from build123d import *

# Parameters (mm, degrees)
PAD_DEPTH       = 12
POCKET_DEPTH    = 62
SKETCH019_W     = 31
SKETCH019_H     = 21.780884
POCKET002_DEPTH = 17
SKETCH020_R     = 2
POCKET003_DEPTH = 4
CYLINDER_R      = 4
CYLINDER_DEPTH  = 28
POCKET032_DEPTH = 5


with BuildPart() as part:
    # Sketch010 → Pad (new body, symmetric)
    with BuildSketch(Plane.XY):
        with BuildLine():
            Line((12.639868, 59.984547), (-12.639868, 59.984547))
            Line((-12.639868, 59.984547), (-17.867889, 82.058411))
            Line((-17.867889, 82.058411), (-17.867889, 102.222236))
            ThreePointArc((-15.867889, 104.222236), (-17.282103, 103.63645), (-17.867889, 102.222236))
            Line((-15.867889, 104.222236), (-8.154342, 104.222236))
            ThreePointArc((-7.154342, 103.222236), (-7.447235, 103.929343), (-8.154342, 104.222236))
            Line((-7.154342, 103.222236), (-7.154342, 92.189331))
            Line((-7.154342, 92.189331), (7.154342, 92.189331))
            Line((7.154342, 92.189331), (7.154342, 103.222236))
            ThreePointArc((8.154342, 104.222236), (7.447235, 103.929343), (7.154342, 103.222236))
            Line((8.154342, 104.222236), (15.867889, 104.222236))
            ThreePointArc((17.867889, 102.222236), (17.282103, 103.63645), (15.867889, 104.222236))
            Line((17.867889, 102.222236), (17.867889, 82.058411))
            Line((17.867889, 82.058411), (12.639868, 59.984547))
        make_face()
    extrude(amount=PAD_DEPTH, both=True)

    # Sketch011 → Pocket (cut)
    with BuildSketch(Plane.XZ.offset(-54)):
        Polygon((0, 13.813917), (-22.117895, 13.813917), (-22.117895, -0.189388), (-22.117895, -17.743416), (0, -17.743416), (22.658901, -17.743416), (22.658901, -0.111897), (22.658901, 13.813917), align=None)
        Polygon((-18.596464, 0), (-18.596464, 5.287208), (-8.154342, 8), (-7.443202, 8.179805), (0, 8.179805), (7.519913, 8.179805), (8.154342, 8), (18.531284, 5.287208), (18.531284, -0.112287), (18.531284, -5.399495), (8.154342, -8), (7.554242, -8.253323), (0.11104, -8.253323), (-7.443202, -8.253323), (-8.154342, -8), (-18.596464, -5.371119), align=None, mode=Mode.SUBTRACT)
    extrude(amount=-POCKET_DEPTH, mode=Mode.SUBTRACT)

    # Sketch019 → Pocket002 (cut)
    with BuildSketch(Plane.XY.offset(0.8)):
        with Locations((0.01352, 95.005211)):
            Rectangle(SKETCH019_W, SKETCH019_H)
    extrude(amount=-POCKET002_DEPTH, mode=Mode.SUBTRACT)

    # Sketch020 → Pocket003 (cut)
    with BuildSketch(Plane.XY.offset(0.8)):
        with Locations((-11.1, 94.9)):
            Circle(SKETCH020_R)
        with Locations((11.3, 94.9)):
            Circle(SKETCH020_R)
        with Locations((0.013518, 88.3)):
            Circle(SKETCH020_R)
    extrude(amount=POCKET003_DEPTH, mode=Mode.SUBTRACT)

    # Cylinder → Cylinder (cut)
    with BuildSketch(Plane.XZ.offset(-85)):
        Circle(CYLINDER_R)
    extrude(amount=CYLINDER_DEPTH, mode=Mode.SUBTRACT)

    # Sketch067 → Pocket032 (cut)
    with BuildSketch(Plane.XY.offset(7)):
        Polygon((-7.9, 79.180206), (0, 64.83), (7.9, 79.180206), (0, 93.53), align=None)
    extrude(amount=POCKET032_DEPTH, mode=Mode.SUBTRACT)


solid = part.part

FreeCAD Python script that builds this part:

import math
import FreeCAD as App
import Part
import Sketcher
Q = App.Units.Quantity

doc = App.newDocument("Part")
body = doc.addObject("PartDesign::Body", "Body")

# Sketch on XY plane
sketch1 = body.newObject("Sketcher::SketchObject", "Sketch")
sketch1.AttachmentSupport = (doc.getObject("XY_Plane"), [""])
sketch1.MapMode = "FlatFace"
sketch1.addGeometry([
    Part.LineSegment(App.Vector(-12.6, 60, 0), App.Vector(12.6, 60, 0)),  # 0
    Part.LineSegment(App.Vector(12.6, 60, 0), App.Vector(17.9, 82.1, 0)),  # 1
    Part.LineSegment(App.Vector(17.9, 82.1, 0), App.Vector(17.9, 102.2, 0)),  # 2
    Part.ArcOfCircle(Part.Circle(App.Vector(15.9, 102.2, 0), App.Vector(0, 0, 1), 2), math.radians(0), math.radians(90)),  # 3
    Part.LineSegment(App.Vector(15.9, 104.2, 0), App.Vector(8.2, 104.2, 0)),  # 4
    Part.ArcOfCircle(Part.Circle(App.Vector(8.2, 103.2, 0), App.Vector(0, 0, 1), 1), math.radians(90), math.radians(180)),  # 5
    Part.LineSegment(App.Vector(7.2, 103.2, 0), App.Vector(7.2, 92.2, 0)),  # 6
    Part.LineSegment(App.Vector(7.2, 92.2, 0), App.Vector(-7.2, 92.2, 0)),  # 7
    Part.LineSegment(App.Vector(-7.2, 92.2, 0), App.Vector(-7.2, 103.2, 0)),  # 8
    Part.ArcOfCircle(Part.Circle(App.Vector(-8.2, 103.2, 0), App.Vector(0, 0, 1), 1), math.radians(0), math.radians(90)),  # 9
    Part.LineSegment(App.Vector(-8.2, 104.2, 0), App.Vector(-15.9, 104.2, 0)),  # 10
    Part.ArcOfCircle(Part.Circle(App.Vector(-15.9, 102.2, 0), App.Vector(0, 0, 1), 2), math.radians(90), math.radians(180)),  # 11
    Part.LineSegment(App.Vector(-17.9, 102.2, 0), App.Vector(-17.9, 82.1, 0)),  # 12
    Part.LineSegment(App.Vector(-17.9, 82.1, 0), App.Vector(-12.6, 60, 0)),  # 13
], False)
sketch1.addConstraint([
    Sketcher.Constraint("Coincident", 0, 2, 1, 1),
    Sketcher.Constraint("Coincident", 1, 2, 2, 1),
    Sketcher.Constraint("Tangent", 2, 2, 3, 1),
    Sketcher.Constraint("Tangent", 3, 2, 4, 1),
    Sketcher.Constraint("Tangent", 4, 2, 5, 1),
    Sketcher.Constraint("Tangent", 5, 2, 6, 1),
    Sketcher.Constraint("Coincident", 6, 2, 7, 1),
    Sketcher.Constraint("Coincident", 7, 2, 8, 1),
    Sketcher.Constraint("Tangent", 8, 2, 9, 1),
    Sketcher.Constraint("Tangent", 9, 2, 10, 1),
    Sketcher.Constraint("Tangent", 10, 2, 11, 1),
    Sketcher.Constraint("Tangent", 11, 2, 12, 1),
    Sketcher.Constraint("Coincident", 12, 2, 13, 1),
    Sketcher.Constraint("Coincident", 13, 2, 0, 1),
    Sketcher.Constraint("Horizontal", 0),
    Sketcher.Constraint("Vertical", 2),
    Sketcher.Constraint("Horizontal", 4),
    Sketcher.Constraint("Vertical", 6),
    Sketcher.Constraint("Horizontal", 7),
    Sketcher.Constraint("Vertical", 8),
    Sketcher.Constraint("Horizontal", 10),
    Sketcher.Constraint("Vertical", 12),
    Sketcher.Constraint("Equal", 5, 9),
    Sketcher.Constraint("Equal", 3, 11),
    Sketcher.Constraint("Symmetric", 5, 3, 9, 3, -2),
    Sketcher.Constraint("Symmetric", 1, 2, 12, 2, -2),
    Sketcher.Constraint("Equal", 1, 13),
    Sketcher.Constraint("Radius", 3, Q("1.999999 mm")),
    Sketcher.Constraint("Radius", 5, Q("0.999999 mm")),
    Sketcher.Constraint("DistanceX", 0, 1, 0, 2, Q("25.279736 mm")),
    Sketcher.Constraint("DistanceX", 4, 2, 4, 1, Q("7.713547 mm")),
    Sketcher.Constraint("DistanceX", 7, 2, 7, 1, Q("14.308684 mm")),
    Sketcher.Constraint("DistanceY", 2, 1, 2, 2, Q("20.163825 mm")),
    Sketcher.Constraint("DistanceY", 6, 2, 6, 1, Q("11.032905 mm")),
    Sketcher.Constraint("DistanceY", -1, 1, 1, 2, Q("82.058411 mm")),
    Sketcher.Constraint("DistanceY", 0, 2, 3, 3, Q("42.23769 mm")),
])
pad1 = body.newObject("PartDesign::Pad", "Pad")
pad1.Profile = sketch1
pad1.Length = 24
pad1.Midplane = True

# Sketch on XZ plane
sketch2 = body.newObject("Sketcher::SketchObject", "Sketch001")
sketch2.AttachmentSupport = (doc.getObject("XZ_Plane"), [""])
sketch2.MapMode = "FlatFace"
sketch2.AttachmentOffset = App.Placement(App.Vector(0, 0, -54), App.Rotation())
sketch2.addGeometry([
    Part.LineSegment(App.Vector(-22.1, 13.8, 0), App.Vector(-22.1, -17.7, 0)),  # 0
    Part.LineSegment(App.Vector(-22.1, -17.7, 0), App.Vector(22.7, -17.7, 0)),  # 1
    Part.LineSegment(App.Vector(22.7, -17.7, 0), App.Vector(22.7, 13.8, 0)),  # 2
    Part.LineSegment(App.Vector(22.7, 13.8, 0), App.Vector(-22.1, 13.8, 0)),  # 3
    Part.LineSegment(App.Vector(-18.6, -5.4, 0), App.Vector(-18.6, 5.3, 0)),  # 4
    Part.LineSegment(App.Vector(-18.6, 5.3, 0), App.Vector(-8.2, 8, 0)),  # 5
    Part.LineSegment(App.Vector(-8.2, 8, 0), App.Vector(-7.4, 8.2, 0)),  # 6
    Part.LineSegment(App.Vector(-7.4, 8.2, 0), App.Vector(7.5, 8.2, 0)),  # 7
    Part.LineSegment(App.Vector(7.5, 8.2, 0), App.Vector(8.2, 8, 0)),  # 8
    Part.LineSegment(App.Vector(8.2, 8, 0), App.Vector(18.5, 5.3, 0)),  # 9
    Part.LineSegment(App.Vector(18.5, 5.3, 0), App.Vector(18.5, -5.4, 0)),  # 10
    Part.LineSegment(App.Vector(18.5, -5.4, 0), App.Vector(8.2, -8, 0)),  # 11
    Part.LineSegment(App.Vector(8.2, -8, 0), App.Vector(7.6, -8.3, 0)),  # 12
    Part.LineSegment(App.Vector(7.6, -8.3, 0), App.Vector(-7.4, -8.3, 0)),  # 13
    Part.LineSegment(App.Vector(-7.4, -8.3, 0), App.Vector(-8.2, -8, 0)),  # 14
    Part.LineSegment(App.Vector(-8.2, -8, 0), App.Vector(-18.6, -5.4, 0)),  # 15
], False)
sketch2.addConstraint([
    Sketcher.Constraint("Coincident", 0, 2, 1, 1),
    Sketcher.Constraint("Coincident", 1, 2, 2, 1),
    Sketcher.Constraint("Coincident", 2, 2, 3, 1),
    Sketcher.Constraint("Coincident", 3, 2, 0, 1),
    Sketcher.Constraint("Coincident", 4, 2, 5, 1),
    Sketcher.Constraint("Coincident", 5, 2, 6, 1),
    Sketcher.Constraint("Coincident", 6, 2, 7, 1),
    Sketcher.Constraint("Coincident", 7, 2, 8, 1),
    Sketcher.Constraint("Coincident", 8, 2, 9, 1),
    Sketcher.Constraint("Coincident", 9, 2, 10, 1),
    Sketcher.Constraint("Coincident", 10, 2, 11, 1),
    Sketcher.Constraint("Coincident", 11, 2, 12, 1),
    Sketcher.Constraint("Coincident", 12, 2, 13, 1),
    Sketcher.Constraint("Coincident", 13, 2, 14, 1),
    Sketcher.Constraint("Coincident", 14, 2, 15, 1),
    Sketcher.Constraint("Coincident", 15, 2, 4, 1),
    Sketcher.Constraint("Vertical", 0),
    Sketcher.Constraint("Horizontal", 1),
    Sketcher.Constraint("Vertical", 2),
    Sketcher.Constraint("Horizontal", 3),
    Sketcher.Constraint("Vertical", 4),
    Sketcher.Constraint("Horizontal", 7),
    Sketcher.Constraint("Vertical", 10),
    Sketcher.Constraint("Horizontal", 13),
    Sketcher.Constraint("Symmetric", 5, 2, 11, 2, -1, 1),
    Sketcher.Constraint("Symmetric", 8, 2, 14, 2, -1, 1),
    Sketcher.Constraint("Symmetric", 5, 2, 8, 2, -2),
    Sketcher.Constraint("Horizontal", 4, 2, 9, 2),
    Sketcher.Constraint("Vertical", 6, 2, 13, 2),
    Sketcher.Constraint("DistanceY", -1, 1, 5, 2, Q("8 mm")),
    Sketcher.Constraint("DistanceX", -1, 1, 1, 2, Q("22.658901 mm")),
    Sketcher.Constraint("DistanceY", 10, 2, 7, 2, Q("13.5793 mm")),
    Sketcher.Constraint("DistanceX", 12, 2, 11, 2, Q("0.6001 mm")),
    Sketcher.Constraint("Distance", 5, Q("10.788751 mm")),
    Sketcher.Constraint("Distance", 6, Q("0.733519 mm")),
    Sketcher.Constraint("Distance", 11, Q("10.697829 mm")),
    Sketcher.Constraint("Distance", 15, Q("10.767958 mm")),
    Sketcher.Constraint("DistanceX", 1, 1, 1, 2, Q("44.776796 mm")),
    Sketcher.Constraint("DistanceX", 7, 1, 7, 2, Q("14.963115 mm")),
    Sketcher.Constraint("DistanceX", 13, 2, 13, 1, Q("14.997444 mm")),
    Sketcher.Constraint("DistanceY", 0, 2, 0, 1, Q("31.557333 mm")),
    Sketcher.Constraint("DistanceY", 4, 1, 4, 2, Q("10.658327 mm")),
    Sketcher.Constraint("DistanceY", 10, 2, 10, 1, Q("10.686703 mm")),
    Sketcher.Constraint("DistanceY", 4, 2, 3, 2, Q("8.526709 mm")),
    Sketcher.Constraint("DistanceY", 12, 2, 10, 2, Q("2.853828 mm")),
])
pocket1 = body.newObject("PartDesign::Pocket", "Pocket")
pocket1.Profile = sketch2
pocket1.Length = 62

# Sketch on XY plane
sketch3 = body.newObject("Sketcher::SketchObject", "Sketch002")
sketch3.AttachmentSupport = (doc.getObject("XY_Plane"), [""])
sketch3.MapMode = "FlatFace"
sketch3.AttachmentOffset = App.Placement(App.Vector(0, 0, 0.8), App.Rotation())
sketch3.addGeometry([
    Part.LineSegment(App.Vector(-15, 106, 0), App.Vector(-15, 84, 0)),
    Part.LineSegment(App.Vector(-15, 84, 0), App.Vector(16, 84, 0)),
    Part.LineSegment(App.Vector(16, 84, 0), App.Vector(16, 106, 0)),
    Part.LineSegment(App.Vector(16, 106, 0), App.Vector(-15, 106, 0)),
], False)
sketch3.addConstraint([
    Sketcher.Constraint("Coincident", 0, 2, 1, 1),
    Sketcher.Constraint("Coincident", 1, 2, 2, 1),
    Sketcher.Constraint("Coincident", 2, 2, 3, 1),
    Sketcher.Constraint("Coincident", 3, 2, 0, 1),
    Sketcher.Constraint("Vertical", 0),
    Sketcher.Constraint("Horizontal", 1),
    Sketcher.Constraint("Vertical", 2),
    Sketcher.Constraint("Horizontal", 3),
    Sketcher.Constraint("DistanceX", 1, 1, 1, 2, Q("31 mm")),
    Sketcher.Constraint("DistanceY", 0, 2, 0, 1, Q("21.780884 mm")),
    Sketcher.Constraint("DistanceX", 0, 2, -1, 1, Q("15.48648 mm")),
    Sketcher.Constraint("DistanceY", -1, 1, 0, 2, Q("84.114769 mm")),
])
pocket2 = body.newObject("PartDesign::Pocket", "Pocket001")
pocket2.Profile = sketch3
pocket2.Length = 17

# Sketch on XY plane
sketch4 = body.newObject("Sketcher::SketchObject", "Sketch003")
sketch4.AttachmentSupport = (doc.getObject("XY_Plane"), [""])
sketch4.MapMode = "FlatFace"
sketch4.AttachmentOffset = App.Placement(App.Vector(0, 0, 0.8), App.Rotation())
sketch4.addGeometry([
    Part.Circle(App.Vector(-11.1, 94.9, 0), App.Vector(0, 0, 1), 2),
    Part.Circle(App.Vector(11.3, 94.9, 0), App.Vector(0, 0, 1), 2),
    Part.Circle(App.Vector(0, 88.3, 0), App.Vector(0, 0, 1), 2),
], False)
sketch4.addConstraint([
    Sketcher.Constraint("Equal", 0, 1),
    Sketcher.Constraint("Equal", 1, 2),
    Sketcher.Constraint("Horizontal", 0, 3, 1, 3),
    Sketcher.Constraint("Diameter", 0, Q("4 mm")),
    Sketcher.Constraint("DistanceX", 0, 3, -1, 1, Q("11.1 mm")),
    Sketcher.Constraint("DistanceY", -1, 1, 0, 3, Q("94.9 mm")),
    Sketcher.Constraint("DistanceX", -1, 1, 1, 3, Q("11.3 mm")),
    Sketcher.Constraint("DistanceY", -1, 1, 2, 3, Q("88.3 mm")),
    Sketcher.Constraint("DistanceX", -1, 1, 2, 3, Q("0.013518 mm")),
])
pocket3 = body.newObject("PartDesign::Pocket", "Pocket002")
pocket3.Profile = sketch4
pocket3.Length = 4
pocket3.Reversed = True

# Sketch on XZ plane
sketch5 = body.newObject("Sketcher::SketchObject", "Sketch004")
sketch5.AttachmentSupport = (doc.getObject("XZ_Plane"), [""])
sketch5.MapMode = "FlatFace"
sketch5.AttachmentOffset = App.Placement(App.Vector(0, 0, -85), App.Rotation())
sketch5.addGeometry(Part.Circle(App.Vector(0, 0, 0), App.Vector(0, 0, 1), 4), False)
sketch5.addConstraint([
    Sketcher.Constraint("Coincident", 0, 3, -1, 1),
    Sketcher.Constraint("Diameter", 0, Q("8 mm")),
])
pocket4 = body.newObject("PartDesign::Pocket", "Pocket003")
pocket4.Profile = sketch5
pocket4.Length = 28
pocket4.Reversed = True

# Sketch on XY plane
sketch6 = body.newObject("Sketcher::SketchObject", "Sketch005")
sketch6.AttachmentSupport = (doc.getObject("XY_Plane"), [""])
sketch6.MapMode = "FlatFace"
sketch6.AttachmentOffset = App.Placement(App.Vector(0, 0, 7), App.Rotation())
sketch6.addGeometry([
    Part.LineSegment(App.Vector(-8, 79, 0), App.Vector(0, 65, 0)),
    Part.LineSegment(App.Vector(0, 65, 0), App.Vector(8, 79, 0)),
    Part.LineSegment(App.Vector(8, 79, 0), App.Vector(0, 94, 0)),
    Part.LineSegment(App.Vector(0, 94, 0), App.Vector(-8, 79, 0)),
], False)
sketch6.addConstraint([
    Sketcher.Constraint("Coincident", 0, 2, 1, 1),
    Sketcher.Constraint("Coincident", 1, 2, 2, 1),
    Sketcher.Constraint("Coincident", 2, 2, 3, 1),
    Sketcher.Constraint("Coincident", 3, 2, 0, 1),
    Sketcher.Constraint("Symmetric", 1, 2, 3, 2, -2),
    Sketcher.Constraint("PointOnObject", 0, 2, -2),
    Sketcher.Constraint("PointOnObject", 2, 2, -2),
    Sketcher.Constraint("DistanceX", -1, 1, 1, 2, Q("7.9 mm")),
    Sketcher.Constraint("DistanceY", 0, 2, 2, 2, Q("28.7 mm")),
    Sketcher.Constraint("DistanceY", -1, 1, 0, 2, Q("64.83 mm")),
    Sketcher.Constraint("Distance", 0, Q("16.381038 mm")),
])
pocket5 = body.newObject("PartDesign::Pocket", "Pocket004")
pocket5.Profile = sketch6
pocket5.Length = 5
pocket5.Reversed = True

doc.recompute()
